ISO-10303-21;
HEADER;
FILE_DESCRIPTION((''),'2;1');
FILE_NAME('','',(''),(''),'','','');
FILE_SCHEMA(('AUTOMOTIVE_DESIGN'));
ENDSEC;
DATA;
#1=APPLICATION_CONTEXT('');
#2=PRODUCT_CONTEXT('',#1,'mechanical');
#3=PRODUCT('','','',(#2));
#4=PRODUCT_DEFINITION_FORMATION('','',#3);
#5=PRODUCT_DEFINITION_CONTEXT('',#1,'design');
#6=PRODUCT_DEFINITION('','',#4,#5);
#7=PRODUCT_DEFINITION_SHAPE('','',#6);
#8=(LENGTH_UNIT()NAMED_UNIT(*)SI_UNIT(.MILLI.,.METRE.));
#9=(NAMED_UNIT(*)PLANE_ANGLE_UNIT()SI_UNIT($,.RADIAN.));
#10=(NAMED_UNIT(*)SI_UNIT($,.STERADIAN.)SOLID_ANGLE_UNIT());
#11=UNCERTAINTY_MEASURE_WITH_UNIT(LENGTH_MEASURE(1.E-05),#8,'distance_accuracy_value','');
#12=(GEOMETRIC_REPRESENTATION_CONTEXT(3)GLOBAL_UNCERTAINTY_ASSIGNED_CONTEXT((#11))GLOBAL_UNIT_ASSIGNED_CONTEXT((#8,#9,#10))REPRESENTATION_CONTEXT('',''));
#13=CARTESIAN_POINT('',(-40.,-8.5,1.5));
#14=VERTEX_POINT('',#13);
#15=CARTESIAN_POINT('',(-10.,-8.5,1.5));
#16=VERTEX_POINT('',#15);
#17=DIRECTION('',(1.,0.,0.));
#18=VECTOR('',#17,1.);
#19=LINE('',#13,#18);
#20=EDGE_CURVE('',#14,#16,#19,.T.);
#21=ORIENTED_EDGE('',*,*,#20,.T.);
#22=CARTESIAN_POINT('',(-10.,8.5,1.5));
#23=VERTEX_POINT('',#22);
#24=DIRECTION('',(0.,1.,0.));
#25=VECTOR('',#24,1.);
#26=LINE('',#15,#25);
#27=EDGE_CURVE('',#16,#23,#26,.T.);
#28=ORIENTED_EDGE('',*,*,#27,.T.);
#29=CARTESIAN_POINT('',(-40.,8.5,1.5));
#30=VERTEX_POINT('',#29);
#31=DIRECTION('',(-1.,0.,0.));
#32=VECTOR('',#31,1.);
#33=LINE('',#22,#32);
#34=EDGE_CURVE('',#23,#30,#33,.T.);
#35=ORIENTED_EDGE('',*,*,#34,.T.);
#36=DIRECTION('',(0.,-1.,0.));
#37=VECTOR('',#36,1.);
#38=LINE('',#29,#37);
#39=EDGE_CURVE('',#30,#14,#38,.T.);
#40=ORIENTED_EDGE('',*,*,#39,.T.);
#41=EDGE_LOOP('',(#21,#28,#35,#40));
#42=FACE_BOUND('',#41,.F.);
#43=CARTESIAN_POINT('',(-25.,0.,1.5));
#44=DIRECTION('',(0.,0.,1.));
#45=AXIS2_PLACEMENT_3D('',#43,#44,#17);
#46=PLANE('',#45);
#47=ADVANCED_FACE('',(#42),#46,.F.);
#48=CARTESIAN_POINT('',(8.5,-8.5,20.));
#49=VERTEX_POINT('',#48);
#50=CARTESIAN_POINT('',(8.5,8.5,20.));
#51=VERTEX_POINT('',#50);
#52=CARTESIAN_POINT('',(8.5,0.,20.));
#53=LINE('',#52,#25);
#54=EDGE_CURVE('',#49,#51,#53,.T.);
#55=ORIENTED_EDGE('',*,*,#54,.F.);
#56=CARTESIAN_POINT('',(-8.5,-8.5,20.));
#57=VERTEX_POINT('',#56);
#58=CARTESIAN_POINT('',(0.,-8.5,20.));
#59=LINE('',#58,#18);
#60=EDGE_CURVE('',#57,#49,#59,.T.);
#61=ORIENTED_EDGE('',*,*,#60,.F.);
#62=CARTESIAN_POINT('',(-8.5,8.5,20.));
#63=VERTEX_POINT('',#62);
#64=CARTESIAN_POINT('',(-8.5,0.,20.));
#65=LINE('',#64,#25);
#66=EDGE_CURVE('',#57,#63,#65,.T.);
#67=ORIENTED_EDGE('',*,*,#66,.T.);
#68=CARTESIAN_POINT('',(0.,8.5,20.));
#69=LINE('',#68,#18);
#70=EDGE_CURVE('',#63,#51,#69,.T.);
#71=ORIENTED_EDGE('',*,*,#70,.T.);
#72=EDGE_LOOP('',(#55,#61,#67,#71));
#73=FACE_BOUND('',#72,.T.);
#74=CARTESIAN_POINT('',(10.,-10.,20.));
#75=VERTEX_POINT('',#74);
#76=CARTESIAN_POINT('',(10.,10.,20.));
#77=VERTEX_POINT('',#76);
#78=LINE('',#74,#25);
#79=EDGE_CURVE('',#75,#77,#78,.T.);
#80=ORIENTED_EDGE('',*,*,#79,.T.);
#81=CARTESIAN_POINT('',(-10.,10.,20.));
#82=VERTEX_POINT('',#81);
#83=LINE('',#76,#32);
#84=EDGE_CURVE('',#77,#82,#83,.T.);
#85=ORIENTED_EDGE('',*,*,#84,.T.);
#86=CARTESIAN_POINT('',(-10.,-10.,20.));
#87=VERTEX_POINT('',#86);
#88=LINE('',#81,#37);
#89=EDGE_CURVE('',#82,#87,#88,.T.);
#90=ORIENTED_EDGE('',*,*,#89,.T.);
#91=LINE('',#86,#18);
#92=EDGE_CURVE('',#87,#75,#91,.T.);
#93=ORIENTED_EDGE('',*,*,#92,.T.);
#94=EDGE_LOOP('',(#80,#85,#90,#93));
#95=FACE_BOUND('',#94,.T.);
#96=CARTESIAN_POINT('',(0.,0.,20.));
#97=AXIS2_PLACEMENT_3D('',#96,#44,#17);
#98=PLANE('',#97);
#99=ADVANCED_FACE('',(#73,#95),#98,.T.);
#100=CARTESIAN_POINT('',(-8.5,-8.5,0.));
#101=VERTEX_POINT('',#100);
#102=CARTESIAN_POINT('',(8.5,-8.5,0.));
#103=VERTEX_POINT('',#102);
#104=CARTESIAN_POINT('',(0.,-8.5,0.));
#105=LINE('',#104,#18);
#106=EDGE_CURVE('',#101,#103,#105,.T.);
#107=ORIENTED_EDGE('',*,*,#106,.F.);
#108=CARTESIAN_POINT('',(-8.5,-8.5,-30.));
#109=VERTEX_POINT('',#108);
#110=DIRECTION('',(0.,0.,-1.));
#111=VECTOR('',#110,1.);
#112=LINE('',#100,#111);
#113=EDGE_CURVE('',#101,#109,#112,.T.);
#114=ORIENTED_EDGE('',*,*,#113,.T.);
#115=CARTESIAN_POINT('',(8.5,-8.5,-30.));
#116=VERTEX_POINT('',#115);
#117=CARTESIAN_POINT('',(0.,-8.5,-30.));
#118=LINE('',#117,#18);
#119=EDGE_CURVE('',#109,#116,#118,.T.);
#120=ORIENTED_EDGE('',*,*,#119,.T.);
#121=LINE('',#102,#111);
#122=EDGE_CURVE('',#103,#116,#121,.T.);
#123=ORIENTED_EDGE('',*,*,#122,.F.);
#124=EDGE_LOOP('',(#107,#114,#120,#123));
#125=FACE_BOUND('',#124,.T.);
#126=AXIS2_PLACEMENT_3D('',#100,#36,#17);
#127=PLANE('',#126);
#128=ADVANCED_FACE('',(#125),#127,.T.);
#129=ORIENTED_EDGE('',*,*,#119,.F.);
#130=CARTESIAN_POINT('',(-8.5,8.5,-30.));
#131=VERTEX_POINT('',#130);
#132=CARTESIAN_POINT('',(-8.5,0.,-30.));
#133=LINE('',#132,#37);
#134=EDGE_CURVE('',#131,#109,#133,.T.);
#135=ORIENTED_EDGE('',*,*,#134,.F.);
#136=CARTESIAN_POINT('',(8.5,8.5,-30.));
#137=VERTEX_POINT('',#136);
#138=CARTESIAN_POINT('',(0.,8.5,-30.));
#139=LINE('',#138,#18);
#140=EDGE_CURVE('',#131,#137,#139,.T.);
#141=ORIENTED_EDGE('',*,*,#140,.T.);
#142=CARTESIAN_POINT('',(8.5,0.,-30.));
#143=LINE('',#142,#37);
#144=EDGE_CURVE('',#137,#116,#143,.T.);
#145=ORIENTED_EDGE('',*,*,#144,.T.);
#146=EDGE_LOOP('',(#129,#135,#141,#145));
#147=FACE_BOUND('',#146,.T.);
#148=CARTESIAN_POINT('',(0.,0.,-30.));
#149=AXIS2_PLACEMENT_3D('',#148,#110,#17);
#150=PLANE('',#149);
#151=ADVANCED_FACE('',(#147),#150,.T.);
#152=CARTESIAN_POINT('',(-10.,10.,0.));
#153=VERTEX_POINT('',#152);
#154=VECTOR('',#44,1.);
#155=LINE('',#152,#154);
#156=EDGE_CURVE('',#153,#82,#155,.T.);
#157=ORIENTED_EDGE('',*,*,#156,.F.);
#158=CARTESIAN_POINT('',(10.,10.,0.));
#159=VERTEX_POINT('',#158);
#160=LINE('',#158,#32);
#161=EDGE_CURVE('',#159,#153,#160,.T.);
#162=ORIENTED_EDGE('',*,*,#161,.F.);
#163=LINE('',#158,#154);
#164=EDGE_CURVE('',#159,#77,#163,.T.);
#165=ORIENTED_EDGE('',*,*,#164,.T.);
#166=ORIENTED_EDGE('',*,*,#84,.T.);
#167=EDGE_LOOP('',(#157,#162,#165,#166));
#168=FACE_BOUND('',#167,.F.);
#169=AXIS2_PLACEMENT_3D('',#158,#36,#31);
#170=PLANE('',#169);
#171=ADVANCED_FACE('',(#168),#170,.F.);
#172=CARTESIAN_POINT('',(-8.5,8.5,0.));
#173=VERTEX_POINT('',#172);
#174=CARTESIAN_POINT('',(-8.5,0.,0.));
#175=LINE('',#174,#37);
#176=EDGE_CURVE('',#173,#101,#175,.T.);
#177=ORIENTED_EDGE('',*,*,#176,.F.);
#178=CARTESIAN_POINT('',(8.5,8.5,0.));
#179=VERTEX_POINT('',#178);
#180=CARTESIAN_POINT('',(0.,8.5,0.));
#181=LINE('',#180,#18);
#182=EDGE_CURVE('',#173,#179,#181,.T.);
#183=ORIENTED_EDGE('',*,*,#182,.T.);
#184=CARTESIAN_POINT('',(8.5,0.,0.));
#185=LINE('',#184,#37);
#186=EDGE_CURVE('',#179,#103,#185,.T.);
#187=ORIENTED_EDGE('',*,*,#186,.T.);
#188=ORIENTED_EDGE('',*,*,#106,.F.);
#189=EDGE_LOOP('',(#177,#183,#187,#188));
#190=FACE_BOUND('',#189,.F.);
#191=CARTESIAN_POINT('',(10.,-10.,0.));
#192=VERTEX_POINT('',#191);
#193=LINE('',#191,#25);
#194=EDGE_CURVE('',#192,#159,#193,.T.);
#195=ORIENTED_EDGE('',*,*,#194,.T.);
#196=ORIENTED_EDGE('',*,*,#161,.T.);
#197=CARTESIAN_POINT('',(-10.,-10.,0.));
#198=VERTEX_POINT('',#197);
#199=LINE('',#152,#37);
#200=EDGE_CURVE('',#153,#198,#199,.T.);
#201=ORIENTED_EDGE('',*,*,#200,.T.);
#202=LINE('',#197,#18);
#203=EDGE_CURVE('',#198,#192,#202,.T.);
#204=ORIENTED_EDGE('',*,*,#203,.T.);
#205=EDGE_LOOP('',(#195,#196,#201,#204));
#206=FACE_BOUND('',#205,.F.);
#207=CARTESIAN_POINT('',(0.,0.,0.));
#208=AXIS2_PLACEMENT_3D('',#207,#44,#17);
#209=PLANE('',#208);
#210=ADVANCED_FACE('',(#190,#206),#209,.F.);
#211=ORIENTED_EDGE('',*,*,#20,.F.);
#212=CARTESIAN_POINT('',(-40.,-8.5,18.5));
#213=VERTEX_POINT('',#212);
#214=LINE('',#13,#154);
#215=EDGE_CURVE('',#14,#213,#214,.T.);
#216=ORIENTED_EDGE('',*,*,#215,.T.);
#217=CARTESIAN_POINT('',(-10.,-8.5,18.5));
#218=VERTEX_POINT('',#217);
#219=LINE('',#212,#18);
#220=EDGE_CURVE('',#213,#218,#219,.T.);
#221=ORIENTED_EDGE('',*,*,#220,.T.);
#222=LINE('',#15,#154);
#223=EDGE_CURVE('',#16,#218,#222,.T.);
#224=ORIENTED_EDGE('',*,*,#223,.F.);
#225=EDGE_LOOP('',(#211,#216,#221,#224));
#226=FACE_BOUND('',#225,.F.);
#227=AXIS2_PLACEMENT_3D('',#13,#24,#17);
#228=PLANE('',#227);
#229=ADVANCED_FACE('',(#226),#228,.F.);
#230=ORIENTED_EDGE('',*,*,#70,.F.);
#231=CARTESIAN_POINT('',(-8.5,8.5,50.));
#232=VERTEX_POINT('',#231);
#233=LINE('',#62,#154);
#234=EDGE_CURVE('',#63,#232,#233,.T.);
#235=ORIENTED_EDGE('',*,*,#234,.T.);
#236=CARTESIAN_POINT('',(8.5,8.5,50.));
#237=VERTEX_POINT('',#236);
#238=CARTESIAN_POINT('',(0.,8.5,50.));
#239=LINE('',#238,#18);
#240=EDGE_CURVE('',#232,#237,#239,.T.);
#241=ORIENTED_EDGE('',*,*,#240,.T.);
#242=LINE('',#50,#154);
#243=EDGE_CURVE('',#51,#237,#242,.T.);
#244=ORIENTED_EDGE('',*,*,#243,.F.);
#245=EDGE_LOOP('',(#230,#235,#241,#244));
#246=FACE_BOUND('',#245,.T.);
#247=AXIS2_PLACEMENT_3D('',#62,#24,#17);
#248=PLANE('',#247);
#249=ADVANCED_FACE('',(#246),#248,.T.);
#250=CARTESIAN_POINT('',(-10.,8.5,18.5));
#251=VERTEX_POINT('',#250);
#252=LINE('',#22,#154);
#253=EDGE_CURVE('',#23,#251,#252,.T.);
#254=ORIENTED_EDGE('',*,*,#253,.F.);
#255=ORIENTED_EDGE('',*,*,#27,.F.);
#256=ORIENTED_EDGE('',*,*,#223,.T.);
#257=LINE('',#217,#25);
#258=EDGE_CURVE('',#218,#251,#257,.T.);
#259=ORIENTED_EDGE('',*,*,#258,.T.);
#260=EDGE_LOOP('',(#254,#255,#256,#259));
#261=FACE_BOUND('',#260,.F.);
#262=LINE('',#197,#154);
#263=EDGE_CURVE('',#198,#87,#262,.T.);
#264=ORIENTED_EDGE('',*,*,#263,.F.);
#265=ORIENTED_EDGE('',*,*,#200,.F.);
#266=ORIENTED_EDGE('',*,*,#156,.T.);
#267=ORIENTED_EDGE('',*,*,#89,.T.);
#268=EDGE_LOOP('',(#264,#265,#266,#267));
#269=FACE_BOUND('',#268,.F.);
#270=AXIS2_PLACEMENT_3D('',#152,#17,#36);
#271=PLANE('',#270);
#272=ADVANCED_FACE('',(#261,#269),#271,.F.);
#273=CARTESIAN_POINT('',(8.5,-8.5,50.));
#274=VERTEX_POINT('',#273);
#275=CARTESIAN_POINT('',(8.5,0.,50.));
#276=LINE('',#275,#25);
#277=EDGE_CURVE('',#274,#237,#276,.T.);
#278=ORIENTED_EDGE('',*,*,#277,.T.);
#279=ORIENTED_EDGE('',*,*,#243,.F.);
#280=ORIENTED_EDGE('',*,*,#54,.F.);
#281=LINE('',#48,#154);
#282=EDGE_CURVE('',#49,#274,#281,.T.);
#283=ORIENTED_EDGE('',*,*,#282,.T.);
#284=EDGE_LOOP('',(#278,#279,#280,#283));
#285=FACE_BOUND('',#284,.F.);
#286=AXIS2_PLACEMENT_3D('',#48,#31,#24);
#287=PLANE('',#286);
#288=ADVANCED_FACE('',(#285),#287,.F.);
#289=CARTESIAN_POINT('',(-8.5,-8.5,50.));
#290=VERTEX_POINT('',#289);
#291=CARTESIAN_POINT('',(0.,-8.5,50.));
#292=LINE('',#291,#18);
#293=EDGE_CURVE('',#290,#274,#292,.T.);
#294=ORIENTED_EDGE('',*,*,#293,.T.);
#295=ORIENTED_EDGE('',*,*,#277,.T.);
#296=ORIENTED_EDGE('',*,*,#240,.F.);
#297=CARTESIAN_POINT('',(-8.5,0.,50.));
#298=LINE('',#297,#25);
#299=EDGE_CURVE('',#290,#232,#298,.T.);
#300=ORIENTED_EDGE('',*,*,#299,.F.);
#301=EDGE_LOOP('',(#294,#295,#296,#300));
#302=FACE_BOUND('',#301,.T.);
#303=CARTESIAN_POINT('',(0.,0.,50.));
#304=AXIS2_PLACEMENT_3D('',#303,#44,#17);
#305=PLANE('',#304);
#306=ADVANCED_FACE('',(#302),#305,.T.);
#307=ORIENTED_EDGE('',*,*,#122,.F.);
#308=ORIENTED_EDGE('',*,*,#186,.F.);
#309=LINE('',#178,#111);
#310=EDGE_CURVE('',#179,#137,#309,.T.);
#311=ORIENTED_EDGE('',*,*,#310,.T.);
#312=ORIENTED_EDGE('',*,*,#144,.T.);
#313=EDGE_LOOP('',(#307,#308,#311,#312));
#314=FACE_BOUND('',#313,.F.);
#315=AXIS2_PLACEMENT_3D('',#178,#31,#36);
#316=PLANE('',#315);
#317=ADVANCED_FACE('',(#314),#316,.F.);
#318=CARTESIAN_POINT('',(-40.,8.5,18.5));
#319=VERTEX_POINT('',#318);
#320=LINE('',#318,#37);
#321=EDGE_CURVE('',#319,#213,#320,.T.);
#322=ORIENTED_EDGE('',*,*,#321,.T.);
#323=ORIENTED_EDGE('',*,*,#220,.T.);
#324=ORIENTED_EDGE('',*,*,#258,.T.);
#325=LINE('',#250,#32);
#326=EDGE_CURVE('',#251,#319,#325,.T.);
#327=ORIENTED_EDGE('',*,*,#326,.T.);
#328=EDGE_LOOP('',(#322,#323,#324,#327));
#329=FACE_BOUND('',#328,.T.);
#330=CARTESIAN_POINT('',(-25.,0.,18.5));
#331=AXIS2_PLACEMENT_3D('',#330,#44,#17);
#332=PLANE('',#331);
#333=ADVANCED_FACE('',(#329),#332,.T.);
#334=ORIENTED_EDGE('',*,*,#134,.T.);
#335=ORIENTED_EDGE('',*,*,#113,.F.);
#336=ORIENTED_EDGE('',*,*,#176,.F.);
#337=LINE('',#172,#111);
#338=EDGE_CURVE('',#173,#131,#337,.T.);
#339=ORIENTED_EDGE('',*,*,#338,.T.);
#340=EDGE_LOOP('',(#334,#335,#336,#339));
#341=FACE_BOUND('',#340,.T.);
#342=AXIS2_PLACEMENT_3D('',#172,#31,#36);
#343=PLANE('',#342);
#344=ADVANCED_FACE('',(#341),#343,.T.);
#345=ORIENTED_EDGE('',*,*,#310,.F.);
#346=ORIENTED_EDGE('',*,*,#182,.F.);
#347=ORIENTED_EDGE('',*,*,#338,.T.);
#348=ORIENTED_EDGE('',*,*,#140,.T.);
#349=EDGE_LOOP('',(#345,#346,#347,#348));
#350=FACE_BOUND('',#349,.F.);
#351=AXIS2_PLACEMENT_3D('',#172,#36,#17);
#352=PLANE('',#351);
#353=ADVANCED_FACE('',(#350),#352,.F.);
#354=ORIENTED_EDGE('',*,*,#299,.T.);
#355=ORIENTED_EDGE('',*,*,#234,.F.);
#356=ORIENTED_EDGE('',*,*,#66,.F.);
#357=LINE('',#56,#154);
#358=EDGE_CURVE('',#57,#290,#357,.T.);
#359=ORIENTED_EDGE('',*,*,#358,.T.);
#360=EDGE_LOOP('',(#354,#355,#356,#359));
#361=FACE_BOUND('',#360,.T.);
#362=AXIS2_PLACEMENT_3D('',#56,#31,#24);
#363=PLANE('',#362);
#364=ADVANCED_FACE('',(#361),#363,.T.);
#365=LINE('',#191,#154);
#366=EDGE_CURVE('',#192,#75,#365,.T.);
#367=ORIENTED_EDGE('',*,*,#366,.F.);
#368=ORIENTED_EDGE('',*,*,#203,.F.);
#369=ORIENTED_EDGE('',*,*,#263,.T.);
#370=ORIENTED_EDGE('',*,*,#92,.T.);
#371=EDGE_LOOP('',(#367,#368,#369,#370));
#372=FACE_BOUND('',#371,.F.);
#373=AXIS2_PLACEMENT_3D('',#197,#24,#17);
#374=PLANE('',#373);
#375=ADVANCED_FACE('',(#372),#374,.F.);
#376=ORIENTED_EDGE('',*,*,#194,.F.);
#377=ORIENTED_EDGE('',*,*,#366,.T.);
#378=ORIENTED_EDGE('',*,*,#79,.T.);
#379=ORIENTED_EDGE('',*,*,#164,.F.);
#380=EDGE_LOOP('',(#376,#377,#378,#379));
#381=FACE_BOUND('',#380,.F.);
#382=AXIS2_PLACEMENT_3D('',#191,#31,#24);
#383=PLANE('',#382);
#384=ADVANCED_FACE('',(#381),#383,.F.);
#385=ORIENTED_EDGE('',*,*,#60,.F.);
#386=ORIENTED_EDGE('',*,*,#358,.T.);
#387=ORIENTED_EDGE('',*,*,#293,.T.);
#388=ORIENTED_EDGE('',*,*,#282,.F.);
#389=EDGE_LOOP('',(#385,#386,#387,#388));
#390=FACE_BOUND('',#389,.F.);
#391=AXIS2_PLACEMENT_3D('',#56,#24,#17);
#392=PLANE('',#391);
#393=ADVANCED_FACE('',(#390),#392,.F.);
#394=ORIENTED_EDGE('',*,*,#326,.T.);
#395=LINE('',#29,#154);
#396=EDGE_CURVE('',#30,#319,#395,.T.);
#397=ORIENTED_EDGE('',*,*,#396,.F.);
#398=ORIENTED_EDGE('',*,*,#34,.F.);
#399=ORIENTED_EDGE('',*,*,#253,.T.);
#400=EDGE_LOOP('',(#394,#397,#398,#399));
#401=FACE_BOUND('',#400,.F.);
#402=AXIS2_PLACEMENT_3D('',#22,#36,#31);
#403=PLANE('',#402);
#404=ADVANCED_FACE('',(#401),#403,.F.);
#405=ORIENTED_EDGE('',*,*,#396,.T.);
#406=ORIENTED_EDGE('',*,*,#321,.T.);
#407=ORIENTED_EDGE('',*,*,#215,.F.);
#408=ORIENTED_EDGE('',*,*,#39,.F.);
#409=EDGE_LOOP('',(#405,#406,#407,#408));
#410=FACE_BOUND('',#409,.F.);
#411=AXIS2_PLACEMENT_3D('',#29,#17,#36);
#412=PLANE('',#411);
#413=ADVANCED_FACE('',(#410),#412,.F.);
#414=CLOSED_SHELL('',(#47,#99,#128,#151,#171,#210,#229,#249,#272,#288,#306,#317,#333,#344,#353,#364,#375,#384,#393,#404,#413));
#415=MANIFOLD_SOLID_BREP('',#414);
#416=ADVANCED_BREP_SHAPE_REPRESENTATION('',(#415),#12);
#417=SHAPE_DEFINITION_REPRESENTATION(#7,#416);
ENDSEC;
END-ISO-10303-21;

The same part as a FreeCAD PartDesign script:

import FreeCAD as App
import Part
import Sketcher
Q = App.Units.Quantity


def add_polygon(sketch, points):
    """Adds a closed chain of lines whose ends are joined by coincident constraints."""
    first, n = sketch.GeometryCount, len(points)
    for a, b in zip(points, points[1:] + points[:1]):
        sketch.addGeometry(Part.LineSegment(App.Vector(*a, 0), App.Vector(*b, 0)), False)
    for i in range(n):
        sketch.addConstraint(Sketcher.Constraint("Coincident", first + i, 2, first + (i + 1) % n, 1))

doc = App.newDocument("Part")
body = doc.addObject("PartDesign::Body", "Body")

# Sketch on XY plane
sketch1 = body.newObject("Sketcher::SketchObject", "Sketch")
sketch1.AttachmentSupport = (doc.getObject("XY_Plane"), [""])
sketch1.MapMode = "FlatFace"
add_polygon(sketch1, [(10, -10), (10, 10), (-10, 10), (-10, -10)])  # lines 0-3
sketch1.addConstraint(Sketcher.Constraint("Vertical", 0))
sketch1.addConstraint(Sketcher.Constraint("Horizontal", 1))
sketch1.addConstraint(Sketcher.Constraint("Vertical", 2))
sketch1.addConstraint(Sketcher.Constraint("Horizontal", 3))
sketch1.addConstraint(Sketcher.Constraint("Symmetric", 0, 2, 2, 2, -1, 1))
sketch1.addConstraint(Sketcher.Constraint("Equal", 3, 0))
sketch1.addConstraint(Sketcher.Constraint("DistanceX", 1, 2, 1, 1, Q("20 mm")))
pad1 = body.newObject("PartDesign::Pad", "Pad")
pad1.Profile = sketch1
pad1.Length = 20

# Sketch on XY plane
sketch2 = body.newObject("Sketcher::SketchObject", "Sketch001")
sketch2.AttachmentSupport = (doc.getObject("XY_Plane"), [""])
sketch2.MapMode = "FlatFace"
sketch2.AttachmentOffset = App.Placement(App.Vector(0, 0, 1.5), App.Rotation())
add_polygon(sketch2, [(-10, 8.5), (-40, 8.5), (-40, -8.5), (-10, -8.5)])  # lines 0-3
sketch2.addConstraint(Sketcher.Constraint("Horizontal", 0))
sketch2.addConstraint(Sketcher.Constraint("Vertical", 1))
sketch2.addConstraint(Sketcher.Constraint("Horizontal", 2))
sketch2.addConstraint(Sketcher.Constraint("Vertical", 3))
sketch2.addConstraint(Sketcher.Constraint("DistanceX", 0, 2, 0, 1, Q("30 mm")))
sketch2.addConstraint(Sketcher.Constraint("DistanceY", 1, 2, 1, 1, Q("17 mm")))
sketch2.addConstraint(Sketcher.Constraint("DistanceX", 0, 2, -1, 1, Q("40 mm")))
sketch2.addConstraint(Sketcher.Constraint("DistanceY", -1, 1, 0, 2, Q("8.5 mm")))
pad2 = body.newObject("PartDesign::Pad", "Pad001")
pad2.Profile = sketch2
pad2.Length = 17

# Sketch on XY plane
sketch3 = body.newObject("Sketcher::SketchObject", "Sketch002")
sketch3.AttachmentSupport = (doc.getObject("XY_Plane"), [""])
sketch3.MapMode = "FlatFace"
sketch3.AttachmentOffset = App.Placement(App.Vector(0, 0, 20), App.Rotation())
add_polygon(sketch3, [(-8.5, 8.5), (-8.5, -8.5), (8.5, -8.5), (8.5, 8.5)])  # lines 0-3
sketch3.addConstraint(Sketcher.Constraint("Vertical", 0))
sketch3.addConstraint(Sketcher.Constraint("Horizontal", 1))
sketch3.addConstraint(Sketcher.Constraint("Vertical", 2))
sketch3.addConstraint(Sketcher.Constraint("Horizontal", 3))
sketch3.addConstraint(Sketcher.Constraint("Symmetric", 0, 2, 2, 2, -1, 1))
sketch3.addConstraint(Sketcher.Constraint("Equal", 3, 0))
sketch3.addConstraint(Sketcher.Constraint("DistanceX", 1, 1, 1, 2, Q("17 mm")))
pad3 = body.newObject("PartDesign::Pad", "Pad002")
pad3.Profile = sketch3
pad3.Length = 30

# Sketch on XY plane
sketch4 = body.newObject("Sketcher::SketchObject", "Sketch003")
sketch4.AttachmentSupport = (doc.getObject("XY_Plane"), [""])
sketch4.MapMode = "FlatFace"
add_polygon(sketch4, [(-8.5, -8.5), (-8.5, 8.5), (8.5, 8.5), (8.5, -8.5)])  # lines 0-3
sketch4.addConstraint(Sketcher.Constraint("Vertical", 0))
sketch4.addConstraint(Sketcher.Constraint("Horizontal", 1))
sketch4.addConstraint(Sketcher.Constraint("Vertical", 2))
sketch4.addConstraint(Sketcher.Constraint("Horizontal", 3))
sketch4.addConstraint(Sketcher.Constraint("Symmetric", 0, 2, 2, 2, -1, 1))
sketch4.addConstraint(Sketcher.Constraint("Equal", 3, 0))
sketch4.addConstraint(Sketcher.Constraint("DistanceX", 1, 1, 1, 2, Q("17 mm")))
pad4 = body.newObject("PartDesign::Pad", "Pad003")
pad4.Profile = sketch4
pad4.Length = 30
pad4.Reversed = True

doc.recompute()
